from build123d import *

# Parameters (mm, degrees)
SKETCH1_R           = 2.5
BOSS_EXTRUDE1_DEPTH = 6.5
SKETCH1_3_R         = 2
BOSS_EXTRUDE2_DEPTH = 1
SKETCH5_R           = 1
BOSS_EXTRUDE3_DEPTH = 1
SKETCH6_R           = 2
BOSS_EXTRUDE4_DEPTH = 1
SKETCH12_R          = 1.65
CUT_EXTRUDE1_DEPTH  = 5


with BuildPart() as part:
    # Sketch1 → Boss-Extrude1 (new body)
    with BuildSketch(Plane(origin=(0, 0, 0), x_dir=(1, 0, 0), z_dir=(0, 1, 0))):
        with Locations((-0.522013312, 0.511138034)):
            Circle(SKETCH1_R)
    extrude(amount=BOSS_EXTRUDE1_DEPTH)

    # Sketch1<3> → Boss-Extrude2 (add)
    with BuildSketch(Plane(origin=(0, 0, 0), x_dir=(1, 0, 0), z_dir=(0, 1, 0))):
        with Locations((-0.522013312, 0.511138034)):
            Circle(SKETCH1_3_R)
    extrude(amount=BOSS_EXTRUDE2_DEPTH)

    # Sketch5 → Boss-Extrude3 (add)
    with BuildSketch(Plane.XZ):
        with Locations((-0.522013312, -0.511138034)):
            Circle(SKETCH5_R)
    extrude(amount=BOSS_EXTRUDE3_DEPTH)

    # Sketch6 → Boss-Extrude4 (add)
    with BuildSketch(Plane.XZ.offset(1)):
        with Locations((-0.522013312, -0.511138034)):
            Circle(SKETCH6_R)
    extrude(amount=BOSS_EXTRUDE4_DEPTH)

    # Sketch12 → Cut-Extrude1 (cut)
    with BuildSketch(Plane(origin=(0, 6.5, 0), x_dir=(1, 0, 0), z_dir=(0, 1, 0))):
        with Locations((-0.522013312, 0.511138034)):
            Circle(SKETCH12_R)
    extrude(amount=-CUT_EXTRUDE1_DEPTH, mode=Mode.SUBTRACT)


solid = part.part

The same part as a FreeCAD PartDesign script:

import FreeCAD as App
import Part
import Sketcher

doc = App.newDocument("Part")
body = doc.addObject("PartDesign::Body", "Body")

# Sketch on XZ plane
sketch1 = body.newObject("Sketcher::SketchObject", "Sketch")
sketch1.AttachmentSupport = (doc.getObject("XZ_Plane"), [""])
sketch1.MapMode = "FlatFace"
sketch1.addGeometry(Part.Circle(App.Vector(-0.5, -0.5, 0), App.Vector(0, 0, 1), 2.5), False)
sketch1.addConstraint([
    Sketcher.Constraint("Diameter", 0, 5.0),
    Sketcher.Constraint("DistanceY", 0, 3, -1, 1, 0.511138),
    Sketcher.Constraint("DistanceX", 0, 3, -1, 1, 0.522013),
])
pad1 = body.newObject("PartDesign::Pad", "Pad")
pad1.Profile = sketch1
pad1.Length = 6.5
pad1.Reversed = True

# Sketch on XZ plane
sketch2 = body.newObject("Sketcher::SketchObject", "Sketch001")
sketch2.AttachmentSupport = (doc.getObject("XZ_Plane"), [""])
sketch2.MapMode = "FlatFace"
sketch2.addGeometry(Part.Circle(App.Vector(-0.5, -0.5, 0), App.Vector(0, 0, 1), 2), False)
sketch2.addConstraint([
    Sketcher.Constraint("Diameter", 0, 4.0),
    Sketcher.Constraint("DistanceY", 0, 3, -1, 1, 0.511138),
    Sketcher.Constraint("DistanceX", 0, 3, -1, 1, 0.522013),
])
pad2 = body.newObject("PartDesign::Pad", "Pad001")
pad2.Profile = sketch2
pad2.Length = 1
pad2.Reversed = True

# Sketch on XZ plane
sketch3 = body.newObject("Sketcher::SketchObject", "Sketch002")
sketch3.AttachmentSupport = (doc.getObject("XZ_Plane"), [""])
sketch3.MapMode = "FlatFace"
sketch3.addGeometry(Part.Circle(App.Vector(-0.5, -0.5, 0), App.Vector(0, 0, 1), 1), False)
sketch3.addConstraint([
    Sketcher.Constraint("Diameter", 0, 2.0),
    Sketcher.Constraint("DistanceY", 0, 3, -1, 1, 0.511138),
    Sketcher.Constraint("DistanceX", 0, 3, -1, 1, 0.522013),
])
pad3 = body.newObject("PartDesign::Pad", "Pad002")
pad3.Profile = sketch3
pad3.Length = 1

# Sketch on XZ plane
sketch4 = body.newObject("Sketcher::SketchObject", "Sketch003")
sketch4.AttachmentSupport = (doc.getObject("XZ_Plane"), [""])
sketch4.MapMode = "FlatFace"
sketch4.AttachmentOffset = App.Placement(App.Vector(0, 0, 1), App.Rotation())
sketch4.addGeometry(Part.Circle(App.Vector(-0.5, -0.5, 0), App.Vector(0, 0, 1), 2), False)
sketch4.addConstraint([
    Sketcher.Constraint("Diameter", 0, 4.0),
    Sketcher.Constraint("DistanceY", 0, 3, -1, 1, 0.511138),
    Sketcher.Constraint("DistanceX", 0, 3, -1, 1, 0.522013),
])
pad4 = body.newObject("PartDesign::Pad", "Pad003")
pad4.Profile = sketch4
pad4.Length = 1

# Sketch on XZ plane
sketch5 = body.newObject("Sketcher::SketchObject", "Sketch004")
sketch5.AttachmentSupport = (doc.getObject("XZ_Plane"), [""])
sketch5.MapMode = "FlatFace"
sketch5.AttachmentOffset = App.Placement(App.Vector(0, 0, -6.5), App.Rotation())
sketch5.addGeometry(Part.Circle(App.Vector(-0.5, -0.5, 0), App.Vector(0, 0, 1), 1.6), False)
sketch5.addConstraint([
    Sketcher.Constraint("Diameter", 0, 3.3),
    Sketcher.Constraint("DistanceY", 0, 3, -1, 1, 0.511138),
    Sketcher.Constraint("DistanceX", 0, 3, -1, 1, 0.522013),
])
pocket1 = body.newObject("PartDesign::Pocket", "Pocket")
pocket1.Profile = sketch5
pocket1.Length = 5
pocket1.Reversed = True

doc.recompute()
